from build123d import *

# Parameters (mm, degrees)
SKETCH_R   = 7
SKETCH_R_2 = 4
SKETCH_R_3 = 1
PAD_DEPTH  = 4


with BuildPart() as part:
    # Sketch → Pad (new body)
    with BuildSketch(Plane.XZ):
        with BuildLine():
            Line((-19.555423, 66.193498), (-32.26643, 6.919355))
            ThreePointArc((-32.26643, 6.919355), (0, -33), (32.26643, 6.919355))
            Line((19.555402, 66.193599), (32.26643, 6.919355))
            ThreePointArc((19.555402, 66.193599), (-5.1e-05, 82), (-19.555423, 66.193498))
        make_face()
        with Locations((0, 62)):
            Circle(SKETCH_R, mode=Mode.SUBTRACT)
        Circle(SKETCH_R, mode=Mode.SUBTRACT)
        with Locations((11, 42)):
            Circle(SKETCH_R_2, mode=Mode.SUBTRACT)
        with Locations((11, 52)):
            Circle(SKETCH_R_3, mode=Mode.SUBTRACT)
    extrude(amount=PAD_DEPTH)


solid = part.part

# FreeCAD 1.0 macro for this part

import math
import FreeCAD as App
import Part
import Sketcher
from FreeCAD import Vector

doc = App.newDocument("Part")
params = doc.addObject("Spreadsheet::Sheet", "Params")
for row, (alias, value) in enumerate([
    ("sketch1_diameter", "14 mm"),
    ("sketch1_diameter2", "8 mm"),
    ("sketch1_diameter3", "2 mm"),
    ("sketch1_radius", "33 mm"),
    ("sketch1_radius2", "20 mm"),
    ("pad1_length", "4 mm"),
], start=1):
    params.set(f"A{row}", alias)
    params.set(f"B{row}", "=" + value)
    params.setAlias(f"B{row}", alias)

body = doc.addObject("PartDesign::Body", "Body")

sketch1 = body.newObject("Sketcher::SketchObject", "Sketch")
sketch1.AttachmentSupport = (doc.getObject("XZ_Plane"), [""])
sketch1.MapMode = "FlatFace"
sketch1.addGeometry(Part.LineSegment(Vector(-19.6, 66.2, 0), Vector(-32.3, 6.9, 0)), False)
sketch1.addGeometry(Part.ArcOfCircle(Part.Circle(Vector(0, 0, 0), Vector(0, 0, 1), 33), math.radians(168), math.radians(372)), False)
sketch1.addGeometry(Part.LineSegment(Vector(32.3, 6.9, 0), Vector(19.6, 66.2, 0)), False)
sketch1.addGeometry(Part.ArcOfCircle(Part.Circle(Vector(0, 62, 0), Vector(0, 0, 1), 20), math.radians(12), math.radians(168)), False)
sketch1.addGeometry(Part.Circle(Vector(0, 0, 0), Vector(0, 0, 1), 7), False)
sketch1.addGeometry(Part.Circle(Vector(0, 62, 0), Vector(0, 0, 1), 7), False)
sketch1.addGeometry(Part.Circle(Vector(11, 42, 0), Vector(0, 0, 1), 4), False)
sketch1.addGeometry(Part.Circle(Vector(11, 52, 0), Vector(0, 0, 1), 1), False)
sketch1.addConstraint(Sketcher.Constraint("Tangent", 0, 2, 1, 1))
sketch1.addConstraint(Sketcher.Constraint("Tangent", 1, 2, 2, 1))
sketch1.addConstraint(Sketcher.Constraint("Coincident", 2, 2, 3, 1))
sketch1.addConstraint(Sketcher.Constraint("Coincident", 3, 2, 0, 1))
sketch1.addConstraint(Sketcher.Constraint("Coincident", 1, 3, -1, 1))
sketch1.addConstraint(Sketcher.Constraint("Coincident", 4, 3, -1, 1))
sketch1.addConstraint(Sketcher.Constraint("Coincident", 5, 3, 3, 3))
sketch1.addConstraint(Sketcher.Constraint("Equal", 4, 5))
sketch1.addConstraint(Sketcher.Constraint("PointOnObject", 3, 3, -2))
sketch1.addConstraint(Sketcher.Constraint("Vertical", 6, 3, 7, 3))
sketch1.addConstraint(Sketcher.Constraint("Diameter", 4, 14.0))
sketch1.addConstraint(Sketcher.Constraint("Diameter", 6, 8.0))
sketch1.addConstraint(Sketcher.Constraint("Diameter", 7, 2.0))
sketch1.addConstraint(Sketcher.Constraint("Radius", 1, 33.0))
sketch1.addConstraint(Sketcher.Constraint("Radius", 3, 20.0))
sketch1.addConstraint(Sketcher.Constraint("DistanceY", -1, 1, 3, 3, 62.0))
sketch1.addConstraint(Sketcher.Constraint("DistanceX", -1, 1, 6, 3, 11.0))
sketch1.addConstraint(Sketcher.Constraint("DistanceY", -1, 1, 6, 3, 42.0))
sketch1.addConstraint(Sketcher.Constraint("DistanceY", -1, 1, 7, 3, 52.0))
sketch1.addConstraint(Sketcher.Constraint("DistanceY", -1, 1, 2, 2, 66.193599))
sketch1.addConstraint(Sketcher.Constraint("DistanceY", -1, 1, 3, 2, 66.193498))
sketch1.setExpression("Constraints[10]", "Params.sketch1_diameter")
sketch1.setExpression("Constraints[11]", "Params.sketch1_diameter2")
sketch1.setExpression("Constraints[12]", "Params.sketch1_diameter3")
sketch1.setExpression("Constraints[13]", "Params.sketch1_radius")
sketch1.setExpression("Constraints[14]", "Params.sketch1_radius2")
pad1 = body.newObject("PartDesign::Pad", "Pad")
pad1.Profile = sketch1
pad1.setExpression("Length", "Params.pad1_length")

doc.recompute()
